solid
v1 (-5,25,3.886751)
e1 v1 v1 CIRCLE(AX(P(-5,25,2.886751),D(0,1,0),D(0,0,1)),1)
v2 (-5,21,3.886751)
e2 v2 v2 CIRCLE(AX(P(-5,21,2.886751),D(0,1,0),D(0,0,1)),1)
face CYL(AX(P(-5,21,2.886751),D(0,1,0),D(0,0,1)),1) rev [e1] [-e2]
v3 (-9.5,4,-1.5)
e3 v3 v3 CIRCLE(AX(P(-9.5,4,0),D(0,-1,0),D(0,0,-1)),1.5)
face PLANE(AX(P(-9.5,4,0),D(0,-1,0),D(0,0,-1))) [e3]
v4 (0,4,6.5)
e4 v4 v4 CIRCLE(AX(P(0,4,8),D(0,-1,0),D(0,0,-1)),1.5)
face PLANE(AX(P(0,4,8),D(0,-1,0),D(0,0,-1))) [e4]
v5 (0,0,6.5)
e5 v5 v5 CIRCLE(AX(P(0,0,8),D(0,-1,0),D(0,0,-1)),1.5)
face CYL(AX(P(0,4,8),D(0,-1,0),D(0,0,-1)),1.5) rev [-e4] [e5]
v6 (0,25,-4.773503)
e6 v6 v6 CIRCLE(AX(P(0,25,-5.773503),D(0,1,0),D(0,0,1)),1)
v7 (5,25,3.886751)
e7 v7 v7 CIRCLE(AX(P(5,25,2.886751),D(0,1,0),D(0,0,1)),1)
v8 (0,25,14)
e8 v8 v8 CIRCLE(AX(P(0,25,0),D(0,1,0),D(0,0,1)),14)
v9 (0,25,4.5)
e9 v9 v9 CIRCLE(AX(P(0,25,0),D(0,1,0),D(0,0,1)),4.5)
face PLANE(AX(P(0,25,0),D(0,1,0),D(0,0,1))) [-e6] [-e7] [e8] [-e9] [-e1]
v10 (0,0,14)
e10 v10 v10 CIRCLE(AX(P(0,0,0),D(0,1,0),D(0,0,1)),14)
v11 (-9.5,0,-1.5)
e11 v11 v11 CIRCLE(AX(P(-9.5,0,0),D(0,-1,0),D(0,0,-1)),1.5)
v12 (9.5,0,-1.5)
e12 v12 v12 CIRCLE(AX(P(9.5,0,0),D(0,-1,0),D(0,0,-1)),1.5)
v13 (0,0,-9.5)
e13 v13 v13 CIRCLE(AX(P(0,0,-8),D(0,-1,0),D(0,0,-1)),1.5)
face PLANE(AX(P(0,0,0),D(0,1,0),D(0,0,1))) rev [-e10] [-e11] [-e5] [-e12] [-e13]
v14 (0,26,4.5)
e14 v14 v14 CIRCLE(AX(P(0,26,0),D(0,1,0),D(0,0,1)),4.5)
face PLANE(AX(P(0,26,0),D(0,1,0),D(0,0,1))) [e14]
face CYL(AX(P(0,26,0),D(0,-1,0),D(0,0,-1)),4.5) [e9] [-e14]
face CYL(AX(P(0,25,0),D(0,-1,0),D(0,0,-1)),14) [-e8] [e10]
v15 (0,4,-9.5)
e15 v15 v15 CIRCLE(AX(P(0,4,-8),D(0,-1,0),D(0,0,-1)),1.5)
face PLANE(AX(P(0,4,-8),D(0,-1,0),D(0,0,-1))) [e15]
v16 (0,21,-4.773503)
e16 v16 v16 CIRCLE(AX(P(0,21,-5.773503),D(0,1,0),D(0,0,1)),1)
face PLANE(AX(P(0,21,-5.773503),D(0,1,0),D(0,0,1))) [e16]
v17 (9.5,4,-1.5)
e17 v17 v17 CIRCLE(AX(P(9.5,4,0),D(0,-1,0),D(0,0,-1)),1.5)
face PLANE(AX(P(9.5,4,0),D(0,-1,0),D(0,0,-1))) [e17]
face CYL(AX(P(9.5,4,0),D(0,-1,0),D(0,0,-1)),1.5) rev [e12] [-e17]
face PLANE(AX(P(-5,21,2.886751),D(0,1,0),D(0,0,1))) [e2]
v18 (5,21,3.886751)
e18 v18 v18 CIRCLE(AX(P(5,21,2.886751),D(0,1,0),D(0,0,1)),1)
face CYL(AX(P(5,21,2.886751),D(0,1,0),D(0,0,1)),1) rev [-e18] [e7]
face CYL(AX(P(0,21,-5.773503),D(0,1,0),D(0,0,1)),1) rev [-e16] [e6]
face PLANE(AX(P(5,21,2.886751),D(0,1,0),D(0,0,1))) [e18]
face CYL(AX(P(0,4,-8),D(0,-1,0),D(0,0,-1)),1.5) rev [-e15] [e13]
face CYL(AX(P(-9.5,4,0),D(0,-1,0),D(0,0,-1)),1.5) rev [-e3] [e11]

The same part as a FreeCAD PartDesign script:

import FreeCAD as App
import Part
import Sketcher

V = App.Vector
Q = App.Units.Quantity

doc = App.newDocument("Part")
body = doc.addObject("PartDesign::Body", "Body")

# Sketch on XZ plane
sketch1 = body.newObject("Sketcher::SketchObject", "Sketch")
sketch1.AttachmentSupport = (doc.getObject("XZ_Plane"), [""])
sketch1.MapMode = "FlatFace"
sketch1.addGeometry(Part.Circle(V(0, 0, 0), V(0, 0, 1), 14), False)
sketch1.addConstraint([
    Sketcher.Constraint("Coincident", 0, 3, -1, 1),
    Sketcher.Constraint("Diameter", 0, Q("28 mm")),
])
pad1 = body.newObject("PartDesign::Pad", "Pad")
pad1.Profile = sketch1
pad1.Length = 25
pad1.Reversed = True

# Sketch on XZ plane
sketch2 = body.newObject("Sketcher::SketchObject", "Sketch001")
sketch2.AttachmentSupport = (doc.getObject("XZ_Plane"), [""])
sketch2.MapMode = "FlatFace"
sketch2.AttachmentOffset = App.Placement(V(0, 0, -25), App.Rotation())
sketch2.addGeometry(Part.Circle(V(0, 0, 0), V(0, 0, 1), 4.5), False)
sketch2.addConstraint([
    Sketcher.Constraint("Coincident", 0, 3, -1, 1),
    Sketcher.Constraint("Diameter", 0, Q("9 mm")),
])
pad2 = body.newObject("PartDesign::Pad", "Pad001")
pad2.Profile = sketch2
pad2.Length = 1
pad2.Reversed = True

# Sketch on XZ plane
sketch3 = body.newObject("Sketcher::SketchObject", "Sketch002")
sketch3.AttachmentSupport = (doc.getObject("XZ_Plane"), [""])
sketch3.MapMode = "FlatFace"
sketch3.AttachmentOffset = App.Placement(V(0, 0, -25), App.Rotation())
sketch3.addGeometry([
    Part.Circle(V(0, -5.8, 0), V(0, 0, 1), 1),
    Part.Circle(V(5, 2.9, 0), V(0, 0, 1), 1),
    Part.Circle(V(-5, 2.9, 0), V(0, 0, 1), 1),
], False)
sketch3.addConstraint([
    Sketcher.Constraint("Equal", 0, 1),
    Sketcher.Constraint("Equal", 1, 2),
    Sketcher.Constraint("Symmetric", 1, 3, 2, 3, -2),
    Sketcher.Constraint("PointOnObject", 0, 3, -2),
    Sketcher.Constraint("Diameter", 0, Q("2 mm")),
    Sketcher.Constraint("DistanceX", -1, 1, 1, 3, Q("5 mm")),
    Sketcher.Constraint("DistanceY", -1, 1, 1, 3, Q("2.886751 mm")),
    Sketcher.Constraint("DistanceY", 0, 3, -1, 1, Q("5.773503 mm")),
])
pocket1 = body.newObject("PartDesign::Pocket", "Pocket")
pocket1.Profile = sketch3
pocket1.Length = 4
pocket1.Reversed = True

# Sketch on XZ plane
sketch4 = body.newObject("Sketcher::SketchObject", "Sketch003")
sketch4.AttachmentSupport = (doc.getObject("XZ_Plane"), [""])
sketch4.MapMode = "FlatFace"
sketch4.addGeometry([
    Part.Circle(V(9.5, 0, 0), V(0, 0, 1), 1.5),
    Part.Circle(V(-9.5, 0, 0), V(0, 0, 1), 1.5),
    Part.Circle(V(0, -8, 0), V(0, 0, 1), 1.5),
    Part.Circle(V(0, 8, 0), V(0, 0, 1), 1.5),
], False)
sketch4.addConstraint([
    Sketcher.Constraint("Equal", 0, 1),
    Sketcher.Constraint("Equal", 1, 2),
    Sketcher.Constraint("Equal", 2, 3),
    Sketcher.Constraint("Symmetric", 0, 3, 1, 3, -1, 1),
    Sketcher.Constraint("Symmetric", 2, 3, 3, 3, -1, 1),
    Sketcher.Constraint("PointOnObject", 0, 3, -1),
    Sketcher.Constraint("PointOnObject", 2, 3, -2),
    Sketcher.Constraint("Diameter", 0, Q("3 mm")),
    Sketcher.Constraint("DistanceY", 2, 3, -1, 1, Q("8 mm")),
    Sketcher.Constraint("DistanceX", 1, 3, 0, 3, Q("19 mm")),
])
pocket2 = body.newObject("PartDesign::Pocket", "Pocket001")
pocket2.Profile = sketch4
pocket2.Length = 4

doc.recompute()
